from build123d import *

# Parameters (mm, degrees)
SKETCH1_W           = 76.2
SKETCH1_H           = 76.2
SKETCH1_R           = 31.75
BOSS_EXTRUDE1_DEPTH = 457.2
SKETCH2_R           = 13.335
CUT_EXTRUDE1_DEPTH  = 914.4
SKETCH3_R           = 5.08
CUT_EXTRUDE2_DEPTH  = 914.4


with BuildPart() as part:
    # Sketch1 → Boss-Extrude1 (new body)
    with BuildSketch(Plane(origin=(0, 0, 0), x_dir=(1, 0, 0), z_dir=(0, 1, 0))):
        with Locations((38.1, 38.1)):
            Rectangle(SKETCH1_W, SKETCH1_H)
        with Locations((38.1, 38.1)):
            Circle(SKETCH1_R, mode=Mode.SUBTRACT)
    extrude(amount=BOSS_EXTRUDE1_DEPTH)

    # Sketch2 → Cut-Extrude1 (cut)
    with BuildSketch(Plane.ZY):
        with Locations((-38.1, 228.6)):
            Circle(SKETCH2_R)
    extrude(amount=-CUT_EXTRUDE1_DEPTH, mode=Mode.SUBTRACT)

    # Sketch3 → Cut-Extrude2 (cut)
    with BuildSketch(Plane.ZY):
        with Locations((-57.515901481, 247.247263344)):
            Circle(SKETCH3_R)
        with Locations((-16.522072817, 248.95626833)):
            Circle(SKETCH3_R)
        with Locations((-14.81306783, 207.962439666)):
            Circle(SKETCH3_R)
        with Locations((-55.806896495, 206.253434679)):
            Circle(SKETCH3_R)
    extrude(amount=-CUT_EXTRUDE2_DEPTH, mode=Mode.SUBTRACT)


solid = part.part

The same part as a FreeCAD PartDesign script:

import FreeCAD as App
import Part
import Sketcher
Q = App.Units.Quantity


def add_polygon(sketch, points):
    """Adds a closed chain of lines whose ends are joined by coincident constraints."""
    first, n = sketch.GeometryCount, len(points)
    for a, b in zip(points, points[1:] + points[:1]):
        sketch.addGeometry(Part.LineSegment(App.Vector(*a, 0), App.Vector(*b, 0)), False)
    for i in range(n):
        sketch.addConstraint(Sketcher.Constraint("Coincident", first + i, 2, first + (i + 1) % n, 1))

doc = App.newDocument("Part")
params = doc.addObject("Spreadsheet::Sheet", "Params")
for row, (alias, value) in enumerate([
    ("sketch1_diameter", "2.5 in"),
    ("sketch1_width", "3 in"),
    ("pad1_length", "18 in"),
    ("sketch2_diameter", "1.05 in"),
    ("pocket1_length", "36 in"),
    ("sketch3_diameter", "0.4 in"),
    ("pocket2_length", "36 in"),
], start=1):
    params.set(f"A{row}", alias)
    params.set(f"B{row}", "=" + value)
    params.setAlias(f"B{row}", alias)

body = doc.addObject("PartDesign::Body", "Body")

# Sketch on XZ plane
sketch1 = doc.addObject("Sketcher::SketchObject", "Sketch")
body.addObject(sketch1)
sketch1.AttachmentSupport = (doc.XZ_Plane, [""])
sketch1.MapMode = "FlatFace"
add_polygon(sketch1, [(0, -76), (0, 0), (76, 0), (76, -76)])  # lines 0-3
sketch1.addGeometry(Part.Circle(App.Vector(38, -38, 0), App.Vector(0, 0, 1), 32), False)  # 4
sketch1.addConstraint([
    Sketcher.Constraint("Vertical", 0),
    Sketcher.Constraint("Horizontal", 1),
    Sketcher.Constraint("Vertical", 2),
    Sketcher.Constraint("Horizontal", 3),
    Sketcher.Constraint("Coincident", 0, 2, -1, 1),
    Sketcher.Constraint("Equal", 3, 0),
    Sketcher.Constraint("Diameter", 4, Q("2.5 in")),
    Sketcher.Constraint("DistanceX", 1, 1, 1, 2, Q("3 in")),
    Sketcher.Constraint("DistanceX", -1, 1, 4, 3, Q("1.5 in")),
    Sketcher.Constraint("DistanceY", 4, 3, -1, 1, Q("1.5 in")),
])
sketch1.setExpression("Constraints[10]", "Params.sketch1_diameter")
sketch1.setExpression("Constraints[11]", "Params.sketch1_width")
pad1 = doc.addObject("PartDesign::Pad", "Pad")
body.addObject(pad1)
pad1.Profile = sketch1
pad1.setExpression("Length", "Params.pad1_length")
pad1.Reversed = True

# Sketch on YZ plane
sketch2 = doc.addObject("Sketcher::SketchObject", "Sketch001")
body.addObject(sketch2)
sketch2.AttachmentSupport = (doc.YZ_Plane, [""])
sketch2.MapMode = "FlatFace"
sketch2.addGeometry(Part.Circle(App.Vector(229, -38, 0), App.Vector(0, 0, 1), 13), False)
sketch2.addConstraint([
    Sketcher.Constraint("Diameter", 0, Q("1.05 in")),
    Sketcher.Constraint("DistanceX", -1, 1, 0, 3, Q("9 in")),
    Sketcher.Constraint("DistanceY", 0, 3, -1, 1, Q("1.5 in")),
])
sketch2.setExpression("Constraints[0]", "Params.sketch2_diameter")
pocket1 = doc.addObject("PartDesign::Pocket", "Pocket")
body.addObject(pocket1)
pocket1.Profile = sketch2
pocket1.setExpression("Length", "Params.pocket1_length")
pocket1.Reversed = True

# Sketch on YZ plane
sketch3 = doc.addObject("Sketcher::SketchObject", "Sketch002")
body.addObject(sketch3)
sketch3.AttachmentSupport = (doc.YZ_Plane, [""])
sketch3.MapMode = "FlatFace"
sketch3.addGeometry([
    Part.Circle(App.Vector(247, -58, 0), App.Vector(0, 0, 1), 5),
    Part.Circle(App.Vector(249, -17, 0), App.Vector(0, 0, 1), 5),
    Part.Circle(App.Vector(208, -15, 0), App.Vector(0, 0, 1), 5),
    Part.Circle(App.Vector(206, -56, 0), App.Vector(0, 0, 1), 5),
], False)
sketch3.addConstraint([
    Sketcher.Constraint("Equal", 0, 1),
    Sketcher.Constraint("Equal", 1, 2),
    Sketcher.Constraint("Equal", 2, 3),
    Sketcher.Constraint("Diameter", 0, Q("0.4 in")),
    Sketcher.Constraint("DistanceY", 0, 3, -1, 1, 57.515901),
    Sketcher.Constraint("DistanceX", -1, 1, 1, 3, 248.956268),
    Sketcher.Constraint("DistanceX", -1, 1, 2, 3, 207.96244),
    Sketcher.Constraint("DistanceY", 0, 3, 1, 3, 40.993829),
    Sketcher.Constraint("DistanceX", 3, 3, 0, 3, 40.993829),
    Sketcher.Constraint("DistanceY", 3, 3, 2, 3, 40.993829),
    Sketcher.Constraint("DistanceX", -1, 1, 0, 3, 247.247263),
    Sketcher.Constraint("DistanceY", 2, 3, -1, 1, 14.813068),
])
sketch3.setExpression("Constraints[3]", "Params.sketch3_diameter")
pocket2 = doc.addObject("PartDesign::Pocket", "Pocket001")
body.addObject(pocket2)
pocket2.Profile = sketch3
pocket2.setExpression("Length", "Params.pocket2_length")
pocket2.Reversed = True

doc.recompute()
